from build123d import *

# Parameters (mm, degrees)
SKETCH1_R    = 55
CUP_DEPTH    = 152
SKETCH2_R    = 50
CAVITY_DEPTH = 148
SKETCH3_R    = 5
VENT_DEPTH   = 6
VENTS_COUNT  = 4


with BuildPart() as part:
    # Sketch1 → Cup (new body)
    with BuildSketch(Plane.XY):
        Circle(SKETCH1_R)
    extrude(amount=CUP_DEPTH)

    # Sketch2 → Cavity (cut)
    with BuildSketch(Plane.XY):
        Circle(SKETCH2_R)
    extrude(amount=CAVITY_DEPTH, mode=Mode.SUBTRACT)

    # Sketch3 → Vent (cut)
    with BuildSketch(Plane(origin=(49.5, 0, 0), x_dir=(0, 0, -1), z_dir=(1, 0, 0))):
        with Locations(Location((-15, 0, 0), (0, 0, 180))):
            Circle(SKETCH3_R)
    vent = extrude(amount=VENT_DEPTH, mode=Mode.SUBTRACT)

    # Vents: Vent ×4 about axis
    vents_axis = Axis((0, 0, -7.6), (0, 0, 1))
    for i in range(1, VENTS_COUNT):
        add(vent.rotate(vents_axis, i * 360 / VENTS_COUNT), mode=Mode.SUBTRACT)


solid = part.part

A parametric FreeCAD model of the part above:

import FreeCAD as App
import Part
import Sketcher
Q = App.Units.Quantity

doc = App.newDocument("Part")
params = doc.addObject("Spreadsheet::Sheet", "Params")
for row, (alias, value) in enumerate([
    ("sketch1_diameter", "110 mm"),
    ("pad1_length", "152 mm"),
    ("sketch2_diameter", "100 mm"),
    ("pocket1_length", "148 mm"),
    ("sketch3_diameter", "10 mm"),
    ("pocket2_length", "6 mm"),
], start=1):
    params.set(f"A{row}", alias)
    params.set(f"B{row}", "=" + value)
    params.setAlias(f"B{row}", alias)

body = doc.addObject("PartDesign::Body", "Body")

sketch1 = body.newObject("Sketcher::SketchObject", "Sketch")
sketch1.AttachmentSupport = (doc.getObject("XY_Plane"), [""])
sketch1.MapMode = "FlatFace"
sketch1.addGeometry(Part.Circle(App.Vector(0, 0, 0), App.Vector(0, 0, 1), 55), False)
sketch1.addConstraint([
    Sketcher.Constraint("Coincident", 0, 3, -1, 1),
    Sketcher.Constraint("Diameter", 0, Q("110 mm")),
])
sketch1.setExpression("Constraints[1]", "Params.sketch1_diameter")
pad1 = body.newObject("PartDesign::Pad", "Pad")
pad1.Profile = sketch1
pad1.setExpression("Length", "Params.pad1_length")

sketch2 = body.newObject("Sketcher::SketchObject", "Sketch001")
sketch2.AttachmentSupport = (doc.getObject("XY_Plane"), [""])
sketch2.MapMode = "FlatFace"
sketch2.addGeometry(Part.Circle(App.Vector(0, 0, 0), App.Vector(0, 0, 1), 50), False)
sketch2.addConstraint([
    Sketcher.Constraint("Coincident", 0, 3, -1, 1),
    Sketcher.Constraint("Diameter", 0, Q("100 mm")),
])
sketch2.setExpression("Constraints[1]", "Params.sketch2_diameter")
pocket1 = body.newObject("PartDesign::Pocket", "Pocket")
pocket1.Profile = sketch2
pocket1.setExpression("Length", "Params.pocket1_length")
pocket1.Reversed = True

sketch3 = body.newObject("Sketcher::SketchObject", "Sketch002")
sketch3.AttachmentSupport = (doc.getObject("YZ_Plane"), [""])
sketch3.MapMode = "FlatFace"
sketch3.AttachmentOffset = App.Placement(App.Vector(0, 0, 49.5), App.Rotation())
sketch3.addGeometry(Part.Circle(App.Vector(0, 15, 0), App.Vector(0, 0, 1), 5), False)
sketch3.addConstraint([
    Sketcher.Constraint("PointOnObject", 0, 3, -2),
    Sketcher.Constraint("Diameter", 0, Q("10 mm")),
    Sketcher.Constraint("DistanceY", -1, 1, 0, 3, Q("15 mm")),
])
sketch3.setExpression("Constraints[1]", "Params.sketch3_diameter")
pocket2 = body.newObject("PartDesign::Pocket", "Pocket001")
pocket2.Profile = sketch3
pocket2.setExpression("Length", "Params.pocket2_length")
pocket2.Reversed = True
doc.recompute()

polarpattern = body.newObject("PartDesign::PolarPattern", "PolarPattern")
polarpattern.Originals = [pocket2]
polarpattern.Axis = (doc.getObject("Z_Axis"), [""])
polarpattern.Angle = 360
polarpattern.Occurrences = 4
body.Tip = polarpattern

doc.recompute()
